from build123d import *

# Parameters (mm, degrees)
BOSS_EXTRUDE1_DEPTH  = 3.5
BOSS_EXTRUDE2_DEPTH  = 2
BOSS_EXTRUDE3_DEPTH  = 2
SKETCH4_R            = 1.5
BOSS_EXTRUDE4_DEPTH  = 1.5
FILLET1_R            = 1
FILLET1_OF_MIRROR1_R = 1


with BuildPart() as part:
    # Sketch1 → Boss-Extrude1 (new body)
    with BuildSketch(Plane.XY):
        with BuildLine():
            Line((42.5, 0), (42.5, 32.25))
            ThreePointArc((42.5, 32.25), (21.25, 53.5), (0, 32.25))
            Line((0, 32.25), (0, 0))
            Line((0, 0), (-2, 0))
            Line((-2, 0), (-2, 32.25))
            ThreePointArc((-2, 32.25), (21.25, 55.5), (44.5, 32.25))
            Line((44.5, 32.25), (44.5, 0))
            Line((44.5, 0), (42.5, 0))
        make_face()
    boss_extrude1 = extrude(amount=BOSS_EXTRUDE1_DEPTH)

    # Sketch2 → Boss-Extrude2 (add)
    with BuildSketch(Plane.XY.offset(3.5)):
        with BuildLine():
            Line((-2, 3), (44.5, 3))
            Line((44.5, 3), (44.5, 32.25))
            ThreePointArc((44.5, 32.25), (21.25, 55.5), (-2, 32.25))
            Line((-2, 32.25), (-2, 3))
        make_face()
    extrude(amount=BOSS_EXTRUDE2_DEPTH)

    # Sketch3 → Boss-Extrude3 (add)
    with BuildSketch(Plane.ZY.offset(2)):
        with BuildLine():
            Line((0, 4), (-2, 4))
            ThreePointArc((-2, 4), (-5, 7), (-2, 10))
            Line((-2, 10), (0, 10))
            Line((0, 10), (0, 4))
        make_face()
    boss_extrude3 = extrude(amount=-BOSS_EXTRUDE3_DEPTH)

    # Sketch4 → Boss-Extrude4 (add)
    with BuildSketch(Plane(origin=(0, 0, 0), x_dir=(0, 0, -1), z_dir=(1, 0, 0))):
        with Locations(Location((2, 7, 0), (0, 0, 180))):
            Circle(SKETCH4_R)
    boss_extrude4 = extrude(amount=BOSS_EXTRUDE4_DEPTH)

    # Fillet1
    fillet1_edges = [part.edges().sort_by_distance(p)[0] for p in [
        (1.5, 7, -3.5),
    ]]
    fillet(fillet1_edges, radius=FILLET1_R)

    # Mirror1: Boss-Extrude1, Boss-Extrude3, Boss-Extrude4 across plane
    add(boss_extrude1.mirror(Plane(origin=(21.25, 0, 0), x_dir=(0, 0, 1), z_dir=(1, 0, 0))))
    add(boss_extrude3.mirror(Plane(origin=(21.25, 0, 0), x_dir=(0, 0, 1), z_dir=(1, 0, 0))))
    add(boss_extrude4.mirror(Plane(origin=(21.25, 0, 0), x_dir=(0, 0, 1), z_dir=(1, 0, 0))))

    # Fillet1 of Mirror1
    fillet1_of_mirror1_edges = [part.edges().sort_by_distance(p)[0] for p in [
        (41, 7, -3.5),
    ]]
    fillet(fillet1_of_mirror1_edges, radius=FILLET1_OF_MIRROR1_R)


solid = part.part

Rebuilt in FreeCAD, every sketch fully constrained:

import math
import FreeCAD as App
import Part
import Sketcher


def edges_at(feature, points):
    """Names of the edges that pass closest to the given points."""
    edges = feature.Shape.Edges
    near = lambda p: min(range(len(edges)), key=lambda i: edges[i].distToShape(Part.Vertex(*p))[0])
    return sorted({f"Edge{near(p) + 1}" for p in points})

doc = App.newDocument("Part")
body = doc.addObject("PartDesign::Body", "Body")

# Sketch on XY plane
sketch1 = doc.addObject("Sketcher::SketchObject", "Sketch")
body.addObject(sketch1)
sketch1.AttachmentSupport = (doc.XY_Plane, [""])
sketch1.MapMode = "FlatFace"
sketch1.addGeometry([
    Part.LineSegment(App.Vector(42.5, 32.25, 0), App.Vector(42.5, 0, 0)),  # 0
    Part.LineSegment(App.Vector(42.5, 0, 0), App.Vector(44.5, 0, 0)),  # 1
    Part.LineSegment(App.Vector(44.5, 0, 0), App.Vector(44.5, 32.25, 0)),  # 2
    Part.ArcOfCircle(Part.Circle(App.Vector(21.25, 32.25, 0), App.Vector(0, 0, 1), 23.25), math.radians(0), math.radians(180)),  # 3
    Part.LineSegment(App.Vector(-2, 32.25, 0), App.Vector(-2, 0, 0)),  # 4
    Part.LineSegment(App.Vector(-2, 0, 0), App.Vector(0, 0, 0)),  # 5
    Part.LineSegment(App.Vector(0, 0, 0), App.Vector(0, 32.25, 0)),  # 6
    Part.ArcOfCircle(Part.Circle(App.Vector(21.25, 32.25, 0), App.Vector(0, 0, 1), 21.25), math.radians(0), math.radians(180)),  # 7
], False)
sketch1.addConstraint([
    Sketcher.Constraint("Coincident", 0, 2, 1, 1),
    Sketcher.Constraint("Coincident", 1, 2, 2, 1),
    Sketcher.Constraint("Tangent", 2, 2, 3, 1),
    Sketcher.Constraint("Tangent", 3, 2, 4, 1),
    Sketcher.Constraint("Coincident", 4, 2, 5, 1),
    Sketcher.Constraint("Coincident", 5, 2, 6, 1),
    Sketcher.Constraint("Tangent", 6, 2, 7, 2),
    Sketcher.Constraint("Tangent", 7, 1, 0, 1),
    Sketcher.Constraint("Vertical", 0),
    Sketcher.Constraint("Horizontal", 1),
    Sketcher.Constraint("Vertical", 2),
    Sketcher.Constraint("Vertical", 4),
    Sketcher.Constraint("Horizontal", 5),
    Sketcher.Constraint("Vertical", 6),
    Sketcher.Constraint("Coincident", 5, 2, -1, 1),
    Sketcher.Constraint("Coincident", 7, 3, 3, 3),
    Sketcher.Constraint("PointOnObject", 0, 2, -1),
    Sketcher.Constraint("DistanceX", 1, 1, 1, 2, 2.0),
    Sketcher.Constraint("Radius", 3, 23.25),
    Sketcher.Constraint("DistanceY", 0, 2, 0, 1, 32.25),
])
pad1 = doc.addObject("PartDesign::Pad", "Pad")
body.addObject(pad1)
pad1.Profile = sketch1
pad1.Length = 3.5

# Sketch on XY plane
sketch2 = doc.addObject("Sketcher::SketchObject", "Sketch001")
body.addObject(sketch2)
sketch2.AttachmentSupport = (doc.XY_Plane, [""])
sketch2.MapMode = "FlatFace"
sketch2.AttachmentOffset = App.Placement(App.Vector(0, 0, 3.5), App.Rotation())
sketch2.addGeometry([
    Part.LineSegment(App.Vector(-2, 3, 0), App.Vector(44.5, 3, 0)),
    Part.LineSegment(App.Vector(44.5, 3, 0), App.Vector(44.5, 32.25, 0)),
    Part.ArcOfCircle(Part.Circle(App.Vector(21.25, 32.25, 0), App.Vector(0, 0, 1), 23.25), math.radians(0), math.radians(180)),
    Part.LineSegment(App.Vector(-2, 32.25, 0), App.Vector(-2, 3, 0)),
], False)
sketch2.addConstraint([
    Sketcher.Constraint("Coincident", 0, 2, 1, 1),
    Sketcher.Constraint("Tangent", 1, 2, 2, 1),
    Sketcher.Constraint("Tangent", 2, 2, 3, 1),
    Sketcher.Constraint("Coincident", 3, 2, 0, 1),
    Sketcher.Constraint("Horizontal", 0),
    Sketcher.Constraint("Vertical", 1),
    Sketcher.Constraint("Vertical", 3),
    Sketcher.Constraint("Radius", 2, 23.25),
    Sketcher.Constraint("DistanceY", -1, 1, 0, 2, 3.0),
    Sketcher.Constraint("DistanceX", 2, 2, -1, 1, 2.0),
    Sketcher.Constraint("DistanceY", 1, 1, 1, 2, 29.25),
])
pad2 = doc.addObject("PartDesign::Pad", "Pad001")
body.addObject(pad2)
pad2.Profile = sketch2
pad2.Length = 2

# Sketch on YZ plane
sketch3 = doc.addObject("Sketcher::SketchObject", "Sketch002")
body.addObject(sketch3)
sketch3.AttachmentSupport = (doc.YZ_Plane, [""])
sketch3.MapMode = "FlatFace"
sketch3.AttachmentOffset = App.Placement(App.Vector(0, 0, -2), App.Rotation())
sketch3.addGeometry([
    Part.LineSegment(App.Vector(4, -2, 0), App.Vector(4, 0, 0)),
    Part.LineSegment(App.Vector(4, 0, 0), App.Vector(10, 0, 0)),
    Part.LineSegment(App.Vector(10, 0, 0), App.Vector(10, -2, 0)),
    Part.ArcOfCircle(Part.Circle(App.Vector(7, -2, 0), App.Vector(0, 0, 1), 3), math.radians(180), math.radians(360)),
], False)
sketch3.addConstraint([
    Sketcher.Constraint("Coincident", 0, 2, 1, 1),
    Sketcher.Constraint("Coincident", 1, 2, 2, 1),
    Sketcher.Constraint("Tangent", 2, 2, 3, 2),
    Sketcher.Constraint("Tangent", 3, 1, 0, 1),
    Sketcher.Constraint("Vertical", 0),
    Sketcher.Constraint("Horizontal", 1),
    Sketcher.Constraint("Vertical", 2),
    Sketcher.Constraint("PointOnObject", 0, 2, -1),
    Sketcher.Constraint("Radius", 3, 3.0),
    Sketcher.Constraint("DistanceY", 0, 1, 0, 2, 2.0),
    Sketcher.Constraint("DistanceX", -1, 1, 3, 3, 7.0),
])
pad3 = doc.addObject("PartDesign::Pad", "Pad002")
body.addObject(pad3)
pad3.Profile = sketch3
pad3.Length = 2

# Sketch on YZ plane
sketch4 = doc.addObject("Sketcher::SketchObject", "Sketch003")
body.addObject(sketch4)
sketch4.AttachmentSupport = (doc.YZ_Plane, [""])
sketch4.MapMode = "FlatFace"
sketch4.addGeometry(Part.Circle(App.Vector(7, -2, 0), App.Vector(0, 0, 1), 1.5), False)
sketch4.addConstraint([
    Sketcher.Constraint("Diameter", 0, 3.0),
    Sketcher.Constraint("DistanceX", -1, 1, 0, 3, 7.0),
    Sketcher.Constraint("DistanceY", 0, 3, -1, 1, 2.0),
])
pad4 = doc.addObject("PartDesign::Pad", "Pad003")
body.addObject(pad4)
pad4.Profile = sketch4
pad4.Length = 1.5
doc.recompute()

fillet = doc.addObject("PartDesign::Fillet", "Fillet")
body.addObject(fillet)
fillet.Base = (pad4, edges_at(pad4, [(1.5, 7, -3.5)]))
fillet.Radius = 1
doc.recompute()

datumplane = doc.addObject("PartDesign::Plane", "DatumPlane")
body.addObject(datumplane)
datumplane.AttachmentSupport = (doc.YZ_Plane, [""])
datumplane.MapMode = "FlatFace"
datumplane.AttachmentOffset = App.Placement(App.Vector(0, 0, 21.25), App.Rotation())
mirrored = doc.addObject("PartDesign::Mirrored", "Mirrored")
body.addObject(mirrored)
mirrored.Originals = [pad1, pad3, pad4]
mirrored.MirrorPlane = (datumplane, [""])
body.Tip = mirrored
doc.recompute()

fillet2 = doc.addObject("PartDesign::Fillet", "Fillet001")
body.addObject(fillet2)
fillet2.Base = (mirrored, edges_at(mirrored, [(41, 7, -3.5)]))
fillet2.Radius = 1

doc.recompute()
